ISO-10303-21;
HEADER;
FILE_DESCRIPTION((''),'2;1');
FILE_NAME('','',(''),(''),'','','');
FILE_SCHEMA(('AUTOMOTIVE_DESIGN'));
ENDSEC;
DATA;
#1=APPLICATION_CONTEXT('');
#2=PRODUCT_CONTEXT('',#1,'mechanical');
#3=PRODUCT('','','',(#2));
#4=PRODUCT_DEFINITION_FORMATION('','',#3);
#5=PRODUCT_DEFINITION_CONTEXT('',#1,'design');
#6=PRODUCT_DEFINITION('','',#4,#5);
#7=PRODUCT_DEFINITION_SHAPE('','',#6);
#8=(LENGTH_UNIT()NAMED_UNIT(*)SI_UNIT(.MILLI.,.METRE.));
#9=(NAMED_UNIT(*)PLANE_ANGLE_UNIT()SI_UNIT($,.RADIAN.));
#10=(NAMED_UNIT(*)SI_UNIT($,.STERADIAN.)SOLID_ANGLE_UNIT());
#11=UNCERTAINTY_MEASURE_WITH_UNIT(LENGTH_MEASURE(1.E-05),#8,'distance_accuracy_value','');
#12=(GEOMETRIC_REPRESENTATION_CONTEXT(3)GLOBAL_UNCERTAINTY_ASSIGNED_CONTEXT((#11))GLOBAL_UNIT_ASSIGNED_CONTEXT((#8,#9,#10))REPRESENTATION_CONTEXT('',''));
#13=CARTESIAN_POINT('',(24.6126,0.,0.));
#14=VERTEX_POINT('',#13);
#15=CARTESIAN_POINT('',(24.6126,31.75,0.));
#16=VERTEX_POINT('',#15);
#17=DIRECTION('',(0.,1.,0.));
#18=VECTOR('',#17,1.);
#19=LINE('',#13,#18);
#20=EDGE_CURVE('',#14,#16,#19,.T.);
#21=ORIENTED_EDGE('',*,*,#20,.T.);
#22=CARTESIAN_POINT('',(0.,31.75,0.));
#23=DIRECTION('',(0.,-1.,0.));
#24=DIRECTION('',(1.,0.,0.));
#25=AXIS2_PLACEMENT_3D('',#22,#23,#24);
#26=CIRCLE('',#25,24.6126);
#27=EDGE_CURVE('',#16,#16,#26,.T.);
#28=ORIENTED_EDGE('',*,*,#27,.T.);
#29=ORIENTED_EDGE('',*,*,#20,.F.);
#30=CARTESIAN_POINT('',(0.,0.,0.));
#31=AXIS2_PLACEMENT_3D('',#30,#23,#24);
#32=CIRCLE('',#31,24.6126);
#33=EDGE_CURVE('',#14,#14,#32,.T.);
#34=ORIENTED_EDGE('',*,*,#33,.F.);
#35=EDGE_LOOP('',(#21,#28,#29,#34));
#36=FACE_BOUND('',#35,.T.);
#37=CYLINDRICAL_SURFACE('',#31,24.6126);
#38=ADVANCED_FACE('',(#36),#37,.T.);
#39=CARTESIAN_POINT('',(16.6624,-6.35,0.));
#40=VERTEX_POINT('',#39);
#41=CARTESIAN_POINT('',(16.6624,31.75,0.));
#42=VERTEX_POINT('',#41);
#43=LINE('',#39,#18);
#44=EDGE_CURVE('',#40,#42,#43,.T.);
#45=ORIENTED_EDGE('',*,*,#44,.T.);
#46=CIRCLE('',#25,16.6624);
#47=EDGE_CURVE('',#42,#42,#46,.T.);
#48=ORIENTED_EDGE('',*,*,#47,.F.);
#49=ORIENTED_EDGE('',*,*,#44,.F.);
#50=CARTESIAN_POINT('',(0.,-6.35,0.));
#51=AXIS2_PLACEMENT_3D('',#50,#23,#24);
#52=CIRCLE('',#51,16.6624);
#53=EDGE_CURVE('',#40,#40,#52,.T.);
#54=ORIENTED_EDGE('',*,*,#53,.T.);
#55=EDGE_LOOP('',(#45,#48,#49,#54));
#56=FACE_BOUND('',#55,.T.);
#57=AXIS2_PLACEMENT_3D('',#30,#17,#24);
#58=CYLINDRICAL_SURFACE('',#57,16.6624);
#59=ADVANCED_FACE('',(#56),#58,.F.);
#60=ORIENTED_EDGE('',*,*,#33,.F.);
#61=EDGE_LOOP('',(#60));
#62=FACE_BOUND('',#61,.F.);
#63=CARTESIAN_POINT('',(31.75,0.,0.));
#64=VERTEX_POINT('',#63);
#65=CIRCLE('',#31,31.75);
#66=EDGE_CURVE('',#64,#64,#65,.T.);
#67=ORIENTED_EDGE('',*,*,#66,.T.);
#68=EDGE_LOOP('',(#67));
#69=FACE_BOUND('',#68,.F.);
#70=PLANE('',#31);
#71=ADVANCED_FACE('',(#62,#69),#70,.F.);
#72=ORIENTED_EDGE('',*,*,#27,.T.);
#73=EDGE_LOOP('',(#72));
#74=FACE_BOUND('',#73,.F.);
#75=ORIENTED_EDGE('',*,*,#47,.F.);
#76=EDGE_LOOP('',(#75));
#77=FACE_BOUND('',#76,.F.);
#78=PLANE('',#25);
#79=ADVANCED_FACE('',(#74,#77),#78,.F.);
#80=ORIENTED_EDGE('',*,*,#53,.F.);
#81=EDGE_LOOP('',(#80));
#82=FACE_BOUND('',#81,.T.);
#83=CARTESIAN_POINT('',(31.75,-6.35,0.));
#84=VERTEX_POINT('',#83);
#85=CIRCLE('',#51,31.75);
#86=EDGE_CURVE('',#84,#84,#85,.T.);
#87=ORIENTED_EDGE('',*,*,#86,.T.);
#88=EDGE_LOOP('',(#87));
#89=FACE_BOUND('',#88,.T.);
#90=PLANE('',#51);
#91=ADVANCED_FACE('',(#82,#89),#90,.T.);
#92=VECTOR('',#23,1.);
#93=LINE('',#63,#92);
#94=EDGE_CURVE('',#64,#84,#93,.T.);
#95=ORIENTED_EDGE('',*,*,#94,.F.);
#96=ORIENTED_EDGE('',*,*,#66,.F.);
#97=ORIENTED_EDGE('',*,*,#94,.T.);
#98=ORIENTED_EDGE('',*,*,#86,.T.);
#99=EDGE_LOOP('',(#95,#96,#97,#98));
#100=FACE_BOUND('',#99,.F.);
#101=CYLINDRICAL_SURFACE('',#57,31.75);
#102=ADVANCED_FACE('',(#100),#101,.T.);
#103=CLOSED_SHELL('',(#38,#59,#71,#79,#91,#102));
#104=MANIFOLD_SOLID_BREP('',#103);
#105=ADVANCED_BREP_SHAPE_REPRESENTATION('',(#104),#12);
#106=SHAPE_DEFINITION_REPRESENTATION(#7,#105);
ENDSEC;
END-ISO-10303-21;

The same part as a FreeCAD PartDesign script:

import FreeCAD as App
import Part
import Sketcher

V = App.Vector
Q = App.Units.Quantity

doc = App.newDocument("Part")
body = doc.addObject("PartDesign::Body", "Body")

sketch1 = body.newObject("Sketcher::SketchObject", "Sketch")
sketch1.AttachmentSupport = (doc.getObject("XZ_Plane"), [""])
sketch1.MapMode = "FlatFace"
sketch1.addGeometry([
    Part.Circle(V(0, 0, 0), V(0, 0, 1), 25),
    Part.Circle(V(0, 0, 0), V(0, 0, 1), 17),
], False)
sketch1.addConstraint([
    Sketcher.Constraint("Coincident", 0, 3, -1, 1),
    Sketcher.Constraint("Coincident", 1, 3, -1, 1),
    Sketcher.Constraint("Diameter", 0, Q("1.938 in")),
    Sketcher.Constraint("Diameter", 1, Q("1.312 in")),
])
pad1 = body.newObject("PartDesign::Pad", "Pad")
pad1.Profile = sketch1
pad1.Length = Q("1.25 in")
pad1.Reversed = True

sketch2 = body.newObject("Sketcher::SketchObject", "Sketch001")
sketch2.AttachmentSupport = (doc.getObject("XZ_Plane"), [""])
sketch2.MapMode = "FlatFace"
sketch2.addGeometry([
    Part.Circle(V(0, 0, 0), V(0, 0, 1), 32),
    Part.Circle(V(0, 0, 0), V(0, 0, 1), 17),
], False)
sketch2.addConstraint([
    Sketcher.Constraint("Coincident", 0, 3, -1, 1),
    Sketcher.Constraint("Coincident", 1, 3, -1, 1),
    Sketcher.Constraint("Diameter", 0, Q("2.5 in")),
    Sketcher.Constraint("Diameter", 1, Q("1.312 in")),
])
pad2 = body.newObject("PartDesign::Pad", "Pad001")
pad2.Profile = sketch2
pad2.Length = Q("0.25 in")

doc.recompute()
